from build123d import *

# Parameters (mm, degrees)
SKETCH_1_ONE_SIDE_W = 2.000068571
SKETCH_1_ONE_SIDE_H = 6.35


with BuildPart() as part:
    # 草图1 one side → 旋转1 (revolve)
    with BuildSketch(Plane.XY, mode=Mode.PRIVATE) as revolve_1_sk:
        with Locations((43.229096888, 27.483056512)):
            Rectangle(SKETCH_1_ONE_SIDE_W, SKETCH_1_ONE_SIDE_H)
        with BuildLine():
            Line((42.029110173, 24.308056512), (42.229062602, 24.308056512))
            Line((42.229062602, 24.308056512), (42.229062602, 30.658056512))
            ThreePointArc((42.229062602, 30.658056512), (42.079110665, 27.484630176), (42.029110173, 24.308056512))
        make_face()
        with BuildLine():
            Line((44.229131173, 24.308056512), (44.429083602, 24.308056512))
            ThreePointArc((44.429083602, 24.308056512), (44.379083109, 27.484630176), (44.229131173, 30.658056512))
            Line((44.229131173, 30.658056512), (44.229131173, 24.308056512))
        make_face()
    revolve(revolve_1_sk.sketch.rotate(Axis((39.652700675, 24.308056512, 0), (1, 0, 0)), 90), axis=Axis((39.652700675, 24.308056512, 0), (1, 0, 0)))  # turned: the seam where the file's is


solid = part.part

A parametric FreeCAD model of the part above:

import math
import FreeCAD as App
import Part
import Sketcher
from FreeCAD import Vector
Q = App.Units.Quantity

doc = App.newDocument("Part")
body = doc.addObject("PartDesign::Body", "Body")

# Sketch on XY plane
sketch1 = body.newObject("Sketcher::SketchObject", "Sketch")
sketch1.AttachmentSupport = (doc.getObject("XY_Plane"), [""])
sketch1.MapMode = "FlatFace"
sketch1.addGeometry(Part.LineSegment(Vector(44.2, 30.7, 0), Vector(42.2, 30.7, 0)), False)
sketch1.addGeometry(Part.ArcOfCircle(Part.Circle(Vector(143, 24.3, 0), Vector(0, 0, 1), 100.9), math.radians(176.39), math.radians(180)), False)
sketch1.addGeometry(Part.LineSegment(Vector(42, 24.3, 0), Vector(44.4, 24.3, 0)), False)
sketch1.addGeometry(Part.ArcOfCircle(Part.Circle(Vector(-56.5, 24.3, 0), Vector(0, 0, 1), 100.9), math.radians(0), math.radians(3.61)), False)
sketch1.addGeometry(Part.LineSegment(Vector(-56.5, 24.3, 0), Vector(143, 24.3, 0)), True)  # axis
sketch1.addConstraint(Sketcher.Constraint("Coincident", 0, 2, 1, 1))
sketch1.addConstraint(Sketcher.Constraint("Coincident", 1, 2, 2, 1))
sketch1.addConstraint(Sketcher.Constraint("Coincident", 2, 2, 3, 1))
sketch1.addConstraint(Sketcher.Constraint("Coincident", 3, 2, 0, 1))
sketch1.addConstraint(Sketcher.Constraint("Horizontal", 0))
sketch1.addConstraint(Sketcher.Constraint("Horizontal", 2))
sketch1.addConstraint(Sketcher.Constraint("Horizontal", 4))
sketch1.addConstraint(Sketcher.Constraint("Coincident", 4, 1, 3, 3))
sketch1.addConstraint(Sketcher.Constraint("Coincident", 4, 2, 1, 3))
sketch1.addConstraint(Sketcher.Constraint("Horizontal", 3, 3, 1, 2))
sketch1.addConstraint(Sketcher.Constraint("Radius", 1, Q("100.930209 mm")))
sketch1.addConstraint(Sketcher.Constraint("Radius", 3, Q("100.930211 mm")))
sketch1.addConstraint(Sketcher.Constraint("DistanceY", 3, 3, 0, 2, Q("6.35 mm")))
sketch1.addConstraint(Sketcher.Constraint("DistanceX", 0, 2, 0, 1, Q("2.000069 mm")))
sketch1.addConstraint(Sketcher.Constraint("DistanceX", -1, 1, 1, 3, Q("142.959319 mm")))
sketch1.addConstraint(Sketcher.Constraint("DistanceY", -1, 1, 1, 3, Q("24.308057 mm")))
revolution = body.newObject("PartDesign::Revolution", "Revolution")
revolution.Profile = sketch1
revolution.ReferenceAxis = (sketch1, ["Axis0"])
revolution.Angle = 360

doc.recompute()
